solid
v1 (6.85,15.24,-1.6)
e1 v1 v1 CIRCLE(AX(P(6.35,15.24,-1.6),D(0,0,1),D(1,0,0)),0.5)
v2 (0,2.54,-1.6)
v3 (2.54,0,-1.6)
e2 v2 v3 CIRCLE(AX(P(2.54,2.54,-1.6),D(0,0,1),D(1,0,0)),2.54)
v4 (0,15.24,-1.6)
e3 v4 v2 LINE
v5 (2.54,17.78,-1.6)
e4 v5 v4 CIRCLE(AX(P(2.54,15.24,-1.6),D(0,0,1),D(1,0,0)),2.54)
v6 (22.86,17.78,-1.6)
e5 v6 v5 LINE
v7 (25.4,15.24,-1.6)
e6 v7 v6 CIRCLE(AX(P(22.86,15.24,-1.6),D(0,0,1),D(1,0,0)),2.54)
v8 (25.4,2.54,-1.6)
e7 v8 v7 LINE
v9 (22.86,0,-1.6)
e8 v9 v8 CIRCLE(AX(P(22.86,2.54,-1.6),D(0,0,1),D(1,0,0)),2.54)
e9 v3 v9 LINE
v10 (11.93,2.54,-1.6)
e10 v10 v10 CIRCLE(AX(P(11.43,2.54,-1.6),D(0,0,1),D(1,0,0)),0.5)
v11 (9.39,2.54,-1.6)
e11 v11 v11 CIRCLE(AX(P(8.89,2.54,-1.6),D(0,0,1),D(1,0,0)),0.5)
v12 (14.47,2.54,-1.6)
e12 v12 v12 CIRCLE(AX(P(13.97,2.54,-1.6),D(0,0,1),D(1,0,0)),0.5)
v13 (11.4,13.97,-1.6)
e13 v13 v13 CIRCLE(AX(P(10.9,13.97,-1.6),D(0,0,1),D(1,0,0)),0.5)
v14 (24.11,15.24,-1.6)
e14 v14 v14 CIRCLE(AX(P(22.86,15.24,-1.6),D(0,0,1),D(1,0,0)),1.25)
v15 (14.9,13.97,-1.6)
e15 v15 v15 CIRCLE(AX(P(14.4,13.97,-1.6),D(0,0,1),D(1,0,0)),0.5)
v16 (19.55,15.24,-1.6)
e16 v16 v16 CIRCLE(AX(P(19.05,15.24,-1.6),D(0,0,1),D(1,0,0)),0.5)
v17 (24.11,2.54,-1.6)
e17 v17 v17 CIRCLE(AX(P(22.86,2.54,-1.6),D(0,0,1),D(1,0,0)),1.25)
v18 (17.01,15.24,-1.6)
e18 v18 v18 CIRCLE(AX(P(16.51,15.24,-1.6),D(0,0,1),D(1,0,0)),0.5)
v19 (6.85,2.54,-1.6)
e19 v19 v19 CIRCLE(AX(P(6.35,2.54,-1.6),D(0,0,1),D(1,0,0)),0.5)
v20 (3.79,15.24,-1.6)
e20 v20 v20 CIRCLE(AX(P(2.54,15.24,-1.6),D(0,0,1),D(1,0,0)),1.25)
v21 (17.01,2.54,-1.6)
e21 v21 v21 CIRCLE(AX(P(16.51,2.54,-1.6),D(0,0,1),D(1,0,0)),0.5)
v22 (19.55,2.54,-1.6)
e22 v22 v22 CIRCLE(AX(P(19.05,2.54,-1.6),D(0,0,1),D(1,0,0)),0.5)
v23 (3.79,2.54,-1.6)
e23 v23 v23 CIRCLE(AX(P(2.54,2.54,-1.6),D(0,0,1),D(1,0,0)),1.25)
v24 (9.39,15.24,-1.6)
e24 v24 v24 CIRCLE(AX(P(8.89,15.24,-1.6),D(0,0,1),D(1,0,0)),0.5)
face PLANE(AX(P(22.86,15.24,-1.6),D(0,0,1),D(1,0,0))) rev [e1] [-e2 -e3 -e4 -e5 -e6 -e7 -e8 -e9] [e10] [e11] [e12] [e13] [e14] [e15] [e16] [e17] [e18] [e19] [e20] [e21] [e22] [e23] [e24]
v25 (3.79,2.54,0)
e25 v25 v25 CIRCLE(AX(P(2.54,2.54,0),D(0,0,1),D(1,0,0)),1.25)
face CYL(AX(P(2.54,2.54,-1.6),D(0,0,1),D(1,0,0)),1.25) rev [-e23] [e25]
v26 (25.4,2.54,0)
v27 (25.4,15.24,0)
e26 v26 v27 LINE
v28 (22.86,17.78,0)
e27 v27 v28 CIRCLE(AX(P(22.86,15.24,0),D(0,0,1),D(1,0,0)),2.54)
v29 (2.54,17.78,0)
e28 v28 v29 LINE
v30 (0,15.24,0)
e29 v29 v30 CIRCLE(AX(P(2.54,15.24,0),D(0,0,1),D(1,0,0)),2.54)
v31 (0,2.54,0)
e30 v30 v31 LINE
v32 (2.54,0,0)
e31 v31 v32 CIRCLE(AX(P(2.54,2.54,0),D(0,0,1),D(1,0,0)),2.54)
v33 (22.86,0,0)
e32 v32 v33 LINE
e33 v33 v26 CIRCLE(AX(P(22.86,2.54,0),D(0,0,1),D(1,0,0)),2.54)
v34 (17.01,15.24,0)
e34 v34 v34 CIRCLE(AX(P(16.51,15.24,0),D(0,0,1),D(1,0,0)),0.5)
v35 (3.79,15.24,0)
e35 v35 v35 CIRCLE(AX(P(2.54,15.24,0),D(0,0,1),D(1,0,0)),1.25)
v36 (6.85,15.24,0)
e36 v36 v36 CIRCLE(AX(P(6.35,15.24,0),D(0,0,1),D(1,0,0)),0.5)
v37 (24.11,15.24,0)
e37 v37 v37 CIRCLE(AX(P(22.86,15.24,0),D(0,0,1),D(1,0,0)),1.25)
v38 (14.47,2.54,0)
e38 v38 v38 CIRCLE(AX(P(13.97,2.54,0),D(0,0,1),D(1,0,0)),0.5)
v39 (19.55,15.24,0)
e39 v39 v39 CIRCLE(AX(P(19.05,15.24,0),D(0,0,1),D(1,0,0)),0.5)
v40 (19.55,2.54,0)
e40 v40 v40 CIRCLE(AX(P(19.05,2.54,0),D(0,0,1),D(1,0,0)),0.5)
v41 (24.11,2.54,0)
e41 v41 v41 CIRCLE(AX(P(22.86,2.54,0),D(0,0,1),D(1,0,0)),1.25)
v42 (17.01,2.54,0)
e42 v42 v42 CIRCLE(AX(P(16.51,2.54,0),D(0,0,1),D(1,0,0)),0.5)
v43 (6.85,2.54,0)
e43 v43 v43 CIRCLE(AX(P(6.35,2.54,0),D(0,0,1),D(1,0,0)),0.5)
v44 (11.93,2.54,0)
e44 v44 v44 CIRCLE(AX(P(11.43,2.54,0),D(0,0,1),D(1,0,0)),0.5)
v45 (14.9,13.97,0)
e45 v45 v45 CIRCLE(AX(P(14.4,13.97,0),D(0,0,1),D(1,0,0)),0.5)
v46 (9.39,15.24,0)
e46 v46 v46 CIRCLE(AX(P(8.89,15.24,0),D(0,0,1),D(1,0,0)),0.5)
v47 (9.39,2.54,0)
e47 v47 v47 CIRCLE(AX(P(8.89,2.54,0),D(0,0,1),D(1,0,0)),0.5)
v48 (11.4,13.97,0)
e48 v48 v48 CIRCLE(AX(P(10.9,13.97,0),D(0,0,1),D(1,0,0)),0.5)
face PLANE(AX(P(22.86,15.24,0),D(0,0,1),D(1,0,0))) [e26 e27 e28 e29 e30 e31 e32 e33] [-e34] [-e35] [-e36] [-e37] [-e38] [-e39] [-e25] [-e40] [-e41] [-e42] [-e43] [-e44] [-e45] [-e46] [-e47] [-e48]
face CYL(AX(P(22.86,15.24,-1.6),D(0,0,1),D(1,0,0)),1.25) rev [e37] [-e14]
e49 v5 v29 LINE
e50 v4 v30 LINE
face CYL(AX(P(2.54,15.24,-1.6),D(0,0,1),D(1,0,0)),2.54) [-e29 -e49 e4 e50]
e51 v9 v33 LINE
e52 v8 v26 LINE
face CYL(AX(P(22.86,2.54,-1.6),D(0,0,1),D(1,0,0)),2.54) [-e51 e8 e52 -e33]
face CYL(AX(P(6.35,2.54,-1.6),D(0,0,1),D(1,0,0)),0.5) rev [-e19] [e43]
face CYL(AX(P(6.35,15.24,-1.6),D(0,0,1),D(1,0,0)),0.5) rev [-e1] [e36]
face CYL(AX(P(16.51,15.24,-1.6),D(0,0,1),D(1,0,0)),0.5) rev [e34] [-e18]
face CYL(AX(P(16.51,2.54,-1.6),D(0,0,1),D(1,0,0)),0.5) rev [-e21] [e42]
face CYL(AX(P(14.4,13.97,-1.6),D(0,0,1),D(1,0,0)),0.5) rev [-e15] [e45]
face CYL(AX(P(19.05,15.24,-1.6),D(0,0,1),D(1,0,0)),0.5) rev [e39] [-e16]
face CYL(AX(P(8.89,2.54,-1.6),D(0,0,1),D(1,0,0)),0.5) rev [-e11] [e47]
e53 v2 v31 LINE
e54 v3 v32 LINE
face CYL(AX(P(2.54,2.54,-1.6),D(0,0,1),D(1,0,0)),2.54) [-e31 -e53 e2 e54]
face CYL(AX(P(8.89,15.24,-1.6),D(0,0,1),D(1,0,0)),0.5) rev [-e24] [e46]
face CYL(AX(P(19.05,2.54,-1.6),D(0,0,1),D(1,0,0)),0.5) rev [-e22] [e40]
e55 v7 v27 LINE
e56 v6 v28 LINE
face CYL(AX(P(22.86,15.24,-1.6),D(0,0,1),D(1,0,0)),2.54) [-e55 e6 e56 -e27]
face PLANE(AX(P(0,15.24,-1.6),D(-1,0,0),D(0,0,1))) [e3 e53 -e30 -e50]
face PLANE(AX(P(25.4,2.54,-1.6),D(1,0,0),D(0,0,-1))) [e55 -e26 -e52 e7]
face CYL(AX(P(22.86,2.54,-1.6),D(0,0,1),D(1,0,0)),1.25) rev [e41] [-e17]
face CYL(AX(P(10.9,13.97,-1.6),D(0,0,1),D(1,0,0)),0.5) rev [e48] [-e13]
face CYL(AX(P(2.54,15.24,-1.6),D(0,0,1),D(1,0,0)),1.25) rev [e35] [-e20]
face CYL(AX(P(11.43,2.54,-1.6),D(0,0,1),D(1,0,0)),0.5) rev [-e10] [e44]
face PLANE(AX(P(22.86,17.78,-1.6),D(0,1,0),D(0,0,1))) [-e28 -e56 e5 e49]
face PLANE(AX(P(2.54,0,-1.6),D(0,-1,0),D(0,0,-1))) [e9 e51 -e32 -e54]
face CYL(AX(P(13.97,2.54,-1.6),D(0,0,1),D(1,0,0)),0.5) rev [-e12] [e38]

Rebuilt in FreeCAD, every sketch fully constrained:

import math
import FreeCAD as App
import Part
import Sketcher
from FreeCAD import Vector

doc = App.newDocument("Part")
body = doc.addObject("PartDesign::Body", "Body")

sketch1 = doc.addObject("Sketcher::SketchObject", "Sketch")
body.addObject(sketch1)
sketch1.AttachmentSupport = (doc.XY_Plane, [""])
sketch1.MapMode = "FlatFace"
sketch1.addGeometry(Part.LineSegment(Vector(0, 15.2, 0), Vector(0, 2.5, 0)), False)
sketch1.addGeometry(Part.ArcOfCircle(Part.Circle(Vector(2.5, 2.5, 0), Vector(0, 0, 1), 2.5), math.radians(-180), math.radians(-90)), False)
sketch1.addGeometry(Part.LineSegment(Vector(2.5, 0, 0), Vector(22.9, 0, 0)), False)
sketch1.addGeometry(Part.ArcOfCircle(Part.Circle(Vector(22.9, 2.5, 0), Vector(0, 0, 1), 2.5), math.radians(-90), math.radians(0)), False)
sketch1.addGeometry(Part.LineSegment(Vector(25.4, 2.5, 0), Vector(25.4, 15.2, 0)), False)
sketch1.addGeometry(Part.ArcOfCircle(Part.Circle(Vector(22.9, 15.2, 0), Vector(0, 0, 1), 2.5), math.radians(0), math.radians(90)), False)
sketch1.addGeometry(Part.LineSegment(Vector(22.9, 17.8, 0), Vector(2.5, 17.8, 0)), False)
sketch1.addGeometry(Part.ArcOfCircle(Part.Circle(Vector(2.5, 15.2, 0), Vector(0, 0, 1), 2.5), math.radians(90), math.radians(180)), False)
sketch1.addGeometry(Part.Circle(Vector(2.5, 2.5, 0), Vector(0, 0, 1), 1.2), False)
sketch1.addGeometry(Part.Circle(Vector(6.3, 2.5, 0), Vector(0, 0, 1), 0.5), False)
sketch1.addGeometry(Part.Circle(Vector(8.9, 2.5, 0), Vector(0, 0, 1), 0.5), False)
sketch1.addGeometry(Part.Circle(Vector(11.4, 2.5, 0), Vector(0, 0, 1), 0.5), False)
sketch1.addGeometry(Part.Circle(Vector(14, 2.5, 0), Vector(0, 0, 1), 0.5), False)
sketch1.addGeometry(Part.Circle(Vector(16.5, 2.5, 0), Vector(0, 0, 1), 0.5), False)
sketch1.addGeometry(Part.Circle(Vector(19.1, 2.5, 0), Vector(0, 0, 1), 0.5), False)
sketch1.addGeometry(Part.Circle(Vector(22.9, 2.5, 0), Vector(0, 0, 1), 1.2), False)
sketch1.addGeometry(Part.Circle(Vector(2.5, 15.2, 0), Vector(0, 0, 1), 1.2), False)
sketch1.addGeometry(Part.Circle(Vector(6.3, 15.2, 0), Vector(0, 0, 1), 0.5), False)
sketch1.addGeometry(Part.Circle(Vector(10.9, 14, 0), Vector(0, 0, 1), 0.5), False)
sketch1.addGeometry(Part.Circle(Vector(8.9, 15.2, 0), Vector(0, 0, 1), 0.5), False)
sketch1.addGeometry(Part.Circle(Vector(14.4, 14, 0), Vector(0, 0, 1), 0.5), False)
sketch1.addGeometry(Part.Circle(Vector(16.5, 15.2, 0), Vector(0, 0, 1), 0.5), False)
sketch1.addGeometry(Part.Circle(Vector(19.1, 15.2, 0), Vector(0, 0, 1), 0.5), False)
sketch1.addGeometry(Part.Circle(Vector(22.9, 15.2, 0), Vector(0, 0, 1), 1.2), False)
sketch1.addConstraint(Sketcher.Constraint("Tangent", 0, 2, 1, 1))
sketch1.addConstraint(Sketcher.Constraint("Tangent", 1, 2, 2, 1))
sketch1.addConstraint(Sketcher.Constraint("Tangent", 2, 2, 3, 1))
sketch1.addConstraint(Sketcher.Constraint("Tangent", 3, 2, 4, 1))
sketch1.addConstraint(Sketcher.Constraint("Tangent", 4, 2, 5, 1))
sketch1.addConstraint(Sketcher.Constraint("Tangent", 5, 2, 6, 1))
sketch1.addConstraint(Sketcher.Constraint("Tangent", 6, 2, 7, 1))
sketch1.addConstraint(Sketcher.Constraint("Tangent", 7, 2, 0, 1))
sketch1.addConstraint(Sketcher.Constraint("Vertical", 0))
sketch1.addConstraint(Sketcher.Constraint("Horizontal", 2))
sketch1.addConstraint(Sketcher.Constraint("Vertical", 4))
sketch1.addConstraint(Sketcher.Constraint("Horizontal", 6))
sketch1.addConstraint(Sketcher.Constraint("Coincident", 8, 3, 1, 3))
sketch1.addConstraint(Sketcher.Constraint("Coincident", 15, 3, 3, 3))
sketch1.addConstraint(Sketcher.Constraint("Coincident", 16, 3, 7, 3))
sketch1.addConstraint(Sketcher.Constraint("Coincident", 23, 3, 5, 3))
sketch1.addConstraint(Sketcher.Constraint("Equal", 1, 3))
sketch1.addConstraint(Sketcher.Constraint("Equal", 3, 5))
sketch1.addConstraint(Sketcher.Constraint("Equal", 5, 7))
sketch1.addConstraint(Sketcher.Constraint("Equal", 9, 10))
sketch1.addConstraint(Sketcher.Constraint("Equal", 10, 11))
sketch1.addConstraint(Sketcher.Constraint("Equal", 11, 12))
sketch1.addConstraint(Sketcher.Constraint("Equal", 12, 13))
sketch1.addConstraint(Sketcher.Constraint("Equal", 13, 14))
sketch1.addConstraint(Sketcher.Constraint("Equal", 8, 15))
sketch1.addConstraint(Sketcher.Constraint("Equal", 15, 16))
sketch1.addConstraint(Sketcher.Constraint("Equal", 14, 17))
sketch1.addConstraint(Sketcher.Constraint("Equal", 17, 18))
sketch1.addConstraint(Sketcher.Constraint("Equal", 18, 19))
sketch1.addConstraint(Sketcher.Constraint("Equal", 19, 20))
sketch1.addConstraint(Sketcher.Constraint("Equal", 20, 21))
sketch1.addConstraint(Sketcher.Constraint("Equal", 21, 22))
sketch1.addConstraint(Sketcher.Constraint("Equal", 16, 23))
sketch1.addConstraint(Sketcher.Constraint("PointOnObject", 0, 2, -2))
sketch1.addConstraint(Sketcher.Constraint("PointOnObject", 1, 2, -1))
sketch1.addConstraint(Sketcher.Constraint("Horizontal", 8, 3, 9, 3))
sketch1.addConstraint(Sketcher.Constraint("Horizontal", 9, 3, 10, 3))
sketch1.addConstraint(Sketcher.Constraint("Horizontal", 10, 3, 11, 3))
sketch1.addConstraint(Sketcher.Constraint("Horizontal", 11, 3, 12, 3))
sketch1.addConstraint(Sketcher.Constraint("Horizontal", 12, 3, 13, 3))
sketch1.addConstraint(Sketcher.Constraint("Horizontal", 13, 3, 14, 3))
sketch1.addConstraint(Sketcher.Constraint("Horizontal", 16, 3, 17, 3))
sketch1.addConstraint(Sketcher.Constraint("Horizontal", 17, 3, 19, 3))
sketch1.addConstraint(Sketcher.Constraint("Horizontal", 18, 3, 20, 3))
sketch1.addConstraint(Sketcher.Constraint("Horizontal", 19, 3, 21, 3))
sketch1.addConstraint(Sketcher.Constraint("Horizontal", 21, 3, 22, 3))
sketch1.addConstraint(Sketcher.Constraint("Vertical", 9, 3, 17, 3))
sketch1.addConstraint(Sketcher.Constraint("Vertical", 10, 3, 19, 3))
sketch1.addConstraint(Sketcher.Constraint("Vertical", 13, 3, 21, 3))
sketch1.addConstraint(Sketcher.Constraint("Vertical", 14, 3, 22, 3))
sketch1.addConstraint(Sketcher.Constraint("Diameter", 9, 1.0))
sketch1.addConstraint(Sketcher.Constraint("Diameter", 8, 2.5))
sketch1.addConstraint(Sketcher.Constraint("Radius", 1, 2.54))
sketch1.addConstraint(Sketcher.Constraint("DistanceY", 0, 2, 0, 1, 12.7))
sketch1.addConstraint(Sketcher.Constraint("DistanceX", 20, 3, 4, 2, 11.0))
sketch1.addConstraint(Sketcher.Constraint("DistanceX", 2, 1, 2, 2, 20.32))
sketch1.addConstraint(Sketcher.Constraint("DistanceX", -1, 1, 18, 3, 10.9))
sketch1.addConstraint(Sketcher.Constraint("DistanceX", -1, 1, 9, 3, 6.35))
sketch1.addConstraint(Sketcher.Constraint("DistanceX", -1, 1, 10, 3, 8.89))
sketch1.addConstraint(Sketcher.Constraint("DistanceX", -1, 1, 11, 3, 11.43))
sketch1.addConstraint(Sketcher.Constraint("DistanceX", -1, 1, 12, 3, 13.97))
sketch1.addConstraint(Sketcher.Constraint("DistanceX", -1, 1, 13, 3, 16.51))
sketch1.addConstraint(Sketcher.Constraint("DistanceX", -1, 1, 14, 3, 19.05))
sketch1.addConstraint(Sketcher.Constraint("DistanceY", -1, 1, 18, 3, 13.97))
pad1 = doc.addObject("PartDesign::Pad", "Pad")
body.addObject(pad1)
pad1.Profile = sketch1
pad1.Length = 1.6
pad1.Reversed = True

doc.recompute()
